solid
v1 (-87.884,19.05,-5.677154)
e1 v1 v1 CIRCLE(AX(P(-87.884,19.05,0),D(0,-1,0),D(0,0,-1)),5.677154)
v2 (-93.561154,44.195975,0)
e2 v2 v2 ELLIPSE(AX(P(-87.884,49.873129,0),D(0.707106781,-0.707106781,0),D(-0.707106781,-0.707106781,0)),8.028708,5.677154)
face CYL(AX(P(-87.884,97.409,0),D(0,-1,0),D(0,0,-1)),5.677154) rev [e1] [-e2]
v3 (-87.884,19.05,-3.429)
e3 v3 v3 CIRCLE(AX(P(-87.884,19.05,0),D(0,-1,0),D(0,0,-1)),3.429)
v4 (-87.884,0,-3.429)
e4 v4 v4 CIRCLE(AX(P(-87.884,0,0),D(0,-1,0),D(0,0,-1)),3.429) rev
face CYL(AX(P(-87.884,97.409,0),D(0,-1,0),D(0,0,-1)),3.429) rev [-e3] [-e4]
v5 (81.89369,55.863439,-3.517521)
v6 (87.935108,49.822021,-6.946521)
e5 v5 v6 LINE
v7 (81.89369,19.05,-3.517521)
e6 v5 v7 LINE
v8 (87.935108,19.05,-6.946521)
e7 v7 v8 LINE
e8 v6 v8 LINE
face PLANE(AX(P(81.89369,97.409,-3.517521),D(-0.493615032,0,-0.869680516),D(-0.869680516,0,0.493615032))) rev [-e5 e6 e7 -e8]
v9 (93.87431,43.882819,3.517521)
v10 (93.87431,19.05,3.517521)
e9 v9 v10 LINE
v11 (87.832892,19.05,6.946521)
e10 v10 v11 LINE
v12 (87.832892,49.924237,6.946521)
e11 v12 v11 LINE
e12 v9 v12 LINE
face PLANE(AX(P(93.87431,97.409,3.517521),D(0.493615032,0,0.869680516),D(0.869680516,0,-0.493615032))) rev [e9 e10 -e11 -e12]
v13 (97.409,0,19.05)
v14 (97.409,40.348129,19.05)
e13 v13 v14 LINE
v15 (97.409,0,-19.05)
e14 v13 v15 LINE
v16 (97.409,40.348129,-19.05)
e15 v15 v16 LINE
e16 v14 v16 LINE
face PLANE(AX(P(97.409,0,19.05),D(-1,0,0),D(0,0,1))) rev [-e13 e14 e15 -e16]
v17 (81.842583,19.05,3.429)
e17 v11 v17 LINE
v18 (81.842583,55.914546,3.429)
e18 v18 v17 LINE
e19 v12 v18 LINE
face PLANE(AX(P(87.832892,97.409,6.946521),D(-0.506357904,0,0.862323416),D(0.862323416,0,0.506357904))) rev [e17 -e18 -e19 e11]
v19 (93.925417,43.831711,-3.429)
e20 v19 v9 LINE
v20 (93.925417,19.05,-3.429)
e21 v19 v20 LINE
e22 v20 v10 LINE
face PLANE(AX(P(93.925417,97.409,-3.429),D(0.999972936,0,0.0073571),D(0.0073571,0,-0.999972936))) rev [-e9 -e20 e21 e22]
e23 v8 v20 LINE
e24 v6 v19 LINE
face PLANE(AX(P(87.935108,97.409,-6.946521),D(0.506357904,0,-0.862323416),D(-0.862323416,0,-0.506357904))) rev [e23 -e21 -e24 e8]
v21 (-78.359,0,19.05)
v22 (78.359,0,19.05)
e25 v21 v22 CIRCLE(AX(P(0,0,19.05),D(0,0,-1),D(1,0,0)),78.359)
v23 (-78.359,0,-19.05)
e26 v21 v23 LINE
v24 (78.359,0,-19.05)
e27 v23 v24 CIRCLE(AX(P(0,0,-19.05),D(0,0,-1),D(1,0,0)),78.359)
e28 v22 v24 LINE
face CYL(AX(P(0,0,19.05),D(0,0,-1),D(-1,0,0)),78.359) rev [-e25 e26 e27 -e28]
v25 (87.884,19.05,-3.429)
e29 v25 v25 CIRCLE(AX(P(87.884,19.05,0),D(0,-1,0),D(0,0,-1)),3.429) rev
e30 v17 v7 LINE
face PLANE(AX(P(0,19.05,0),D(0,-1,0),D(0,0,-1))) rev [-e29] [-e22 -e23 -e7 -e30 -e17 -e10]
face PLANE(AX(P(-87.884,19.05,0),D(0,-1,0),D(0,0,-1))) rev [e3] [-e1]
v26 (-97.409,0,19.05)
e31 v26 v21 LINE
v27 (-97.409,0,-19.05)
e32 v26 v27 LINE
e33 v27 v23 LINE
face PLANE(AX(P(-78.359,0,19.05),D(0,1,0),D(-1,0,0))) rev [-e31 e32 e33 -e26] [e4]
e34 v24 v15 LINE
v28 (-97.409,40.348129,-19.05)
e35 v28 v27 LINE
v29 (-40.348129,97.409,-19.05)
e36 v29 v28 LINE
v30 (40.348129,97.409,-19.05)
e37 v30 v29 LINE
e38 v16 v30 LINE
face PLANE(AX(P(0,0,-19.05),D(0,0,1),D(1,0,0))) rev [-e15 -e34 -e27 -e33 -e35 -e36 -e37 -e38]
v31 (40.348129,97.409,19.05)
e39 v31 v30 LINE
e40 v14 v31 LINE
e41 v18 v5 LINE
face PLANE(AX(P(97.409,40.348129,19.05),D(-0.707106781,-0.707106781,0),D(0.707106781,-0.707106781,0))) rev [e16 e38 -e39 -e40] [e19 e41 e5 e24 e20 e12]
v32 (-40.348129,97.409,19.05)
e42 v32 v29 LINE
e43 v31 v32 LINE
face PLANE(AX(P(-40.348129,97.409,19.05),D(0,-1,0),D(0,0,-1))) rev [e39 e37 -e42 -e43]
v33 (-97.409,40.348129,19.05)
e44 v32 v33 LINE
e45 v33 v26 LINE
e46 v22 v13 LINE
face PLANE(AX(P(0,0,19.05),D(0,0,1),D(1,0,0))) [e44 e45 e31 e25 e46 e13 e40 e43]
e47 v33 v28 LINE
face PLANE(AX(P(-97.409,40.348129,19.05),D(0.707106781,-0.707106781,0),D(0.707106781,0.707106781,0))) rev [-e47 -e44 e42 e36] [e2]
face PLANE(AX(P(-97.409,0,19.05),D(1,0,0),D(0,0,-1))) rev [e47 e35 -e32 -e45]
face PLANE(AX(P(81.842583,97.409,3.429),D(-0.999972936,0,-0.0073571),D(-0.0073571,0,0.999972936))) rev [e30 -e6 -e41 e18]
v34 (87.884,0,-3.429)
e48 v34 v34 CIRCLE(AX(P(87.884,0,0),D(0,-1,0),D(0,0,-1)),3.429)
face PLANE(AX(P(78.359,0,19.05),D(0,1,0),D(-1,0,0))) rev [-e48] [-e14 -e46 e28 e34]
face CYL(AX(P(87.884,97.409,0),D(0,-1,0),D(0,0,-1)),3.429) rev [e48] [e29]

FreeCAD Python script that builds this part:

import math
import FreeCAD as App
import Part
import Sketcher
from FreeCAD import Vector
Q = App.Units.Quantity

doc = App.newDocument("Part")
params = doc.addObject("Spreadsheet::Sheet", "Params")
for row, (alias, value) in enumerate([
    ("sketch1_radius", "3.085 in"),
    ("sketch1_width", "0.75 in"),
    ("pad1_length", "1.5 in"),
    ("sketch2_diameter", "0.27 in"),
], start=1):
    params.set(f"A{row}", alias)
    params.set(f"B{row}", "=" + value)
    params.setAlias(f"B{row}", alias)

body = doc.addObject("PartDesign::Body", "Body")

# Sketch on XY plane
sketch1 = body.newObject("Sketcher::SketchObject", "Sketch")
sketch1.AttachmentSupport = (doc.getObject("XY_Plane"), [""])
sketch1.MapMode = "FlatFace"
sketch1.addGeometry([
    Part.LineSegment(Vector(-97, 0, 0), Vector(-78, 0, 0)),  # 0
    Part.ArcOfCircle(Part.Circle(Vector(0, 0, 0), Vector(0, 0, 1), 78), math.radians(0), math.radians(180)),  # 1
    Part.LineSegment(Vector(78, 0, 0), Vector(97, 0, 0)),  # 2
    Part.LineSegment(Vector(97, 0, 0), Vector(97, 40, 0)),  # 3
    Part.LineSegment(Vector(97, 40, 0), Vector(40, 97, 0)),  # 4
    Part.LineSegment(Vector(40, 97, 0), Vector(-40, 97, 0)),  # 5
    Part.LineSegment(Vector(-40, 97, 0), Vector(-97, 40, 0)),  # 6
    Part.LineSegment(Vector(-97, 40, 0), Vector(-97, 0, 0)),  # 7
], False)
sketch1.addConstraint([
    Sketcher.Constraint("Coincident", 0, 2, 1, 2),
    Sketcher.Constraint("Coincident", 1, 1, 2, 1),
    Sketcher.Constraint("Coincident", 2, 2, 3, 1),
    Sketcher.Constraint("Coincident", 3, 2, 4, 1),
    Sketcher.Constraint("Coincident", 4, 2, 5, 1),
    Sketcher.Constraint("Coincident", 5, 2, 6, 1),
    Sketcher.Constraint("Coincident", 6, 2, 7, 1),
    Sketcher.Constraint("Coincident", 7, 2, 0, 1),
    Sketcher.Constraint("Horizontal", 0),
    Sketcher.Constraint("Horizontal", 2),
    Sketcher.Constraint("Vertical", 3),
    Sketcher.Constraint("Horizontal", 5),
    Sketcher.Constraint("Vertical", 7),
    Sketcher.Constraint("Coincident", 1, 3, -1, 1),
    Sketcher.Constraint("Symmetric", 2, 2, 7, 2, -1, 1),
    Sketcher.Constraint("PointOnObject", 0, 2, -1),
    Sketcher.Constraint("Perpendicular", 4, 6),
    Sketcher.Constraint("Horizontal", 3, 2, 6, 2),
    Sketcher.Constraint("Equal", 4, 6),
    Sketcher.Constraint("Radius", 1, Q("3.085 in")),
    Sketcher.Constraint("DistanceX", 0, 1, 0, 2, Q("0.75 in")),
    Sketcher.Constraint("DistanceY", -1, 1, 4, 2, Q("3.835 in")),
    Sketcher.Constraint("DistanceY", 3, 1, 3, 2, Q("40.348129 mm")),
])
sketch1.setExpression("Constraints[19]", "Params.sketch1_radius")
sketch1.setExpression("Constraints[20]", "Params.sketch1_width")
pad1 = body.newObject("PartDesign::Pad", "Pad")
pad1.Profile = sketch1
pad1.setExpression("Length", "Params.pad1_length")
pad1.Midplane = True

# Sketch on XZ plane
sketch2 = body.newObject("Sketcher::SketchObject", "Sketch001")
sketch2.AttachmentSupport = (doc.getObject("XZ_Plane"), [""])
sketch2.MapMode = "FlatFace"
sketch2.addGeometry([
    Part.Circle(Vector(87.9, 0, 0), Vector(0, 0, 1), 3.4),
    Part.Circle(Vector(-87.9, 0, 0), Vector(0, 0, 1), 3.4),
], False)
sketch2.addConstraint([
    Sketcher.Constraint("Equal", 0, 1),
    Sketcher.Constraint("Symmetric", 0, 3, 1, 3, -1, 1),
    Sketcher.Constraint("PointOnObject", 0, 3, -1),
    Sketcher.Constraint("Diameter", 0, Q("0.27 in")),
    Sketcher.Constraint("DistanceX", -1, 1, 0, 3, Q("3.46 in")),
])
sketch2.setExpression("Constraints[3]", "Params.sketch2_diameter")
pocket1 = body.newObject("PartDesign::Pocket", "Pocket")
pocket1.Profile = sketch2
pocket1.Type = "ThroughAll"

# Sketch on XZ plane
sketch3 = body.newObject("Sketcher::SketchObject", "Sketch002")
sketch3.AttachmentSupport = (doc.getObject("XZ_Plane"), [""])
sketch3.MapMode = "FlatFace"
sketch3.AttachmentOffset = App.Placement(Vector(0, 0, -0.75 * 25.4), App.Rotation())
sketch3.addGeometry([
    Part.Circle(Vector(-87.884, 0, 0), Vector(0, 0, 1), 5.677154),  # 0
    Part.LineSegment(Vector(93.925417, -3.429, 0), Vector(93.87431, 3.517521, 0)),  # 1
    Part.LineSegment(Vector(93.87431, 3.517521, 0), Vector(87.832892, 6.946521, 0)),  # 2
    Part.LineSegment(Vector(87.832892, 6.946521, 0), Vector(81.842583, 3.429, 0)),  # 3
    Part.LineSegment(Vector(81.842583, 3.429, 0), Vector(81.89369, -3.517521, 0)),  # 4
    Part.LineSegment(Vector(81.89369, -3.517521, 0), Vector(87.935108, -6.946521, 0)),  # 5
    Part.LineSegment(Vector(87.935108, -6.946521, 0), Vector(93.925417, -3.429, 0)),  # 6
], False)
sketch3.addConstraint([
    Sketcher.Constraint("Coincident", 1, 2, 2, 1),
    Sketcher.Constraint("Coincident", 2, 2, 3, 1),
    Sketcher.Constraint("Coincident", 3, 2, 4, 1),
    Sketcher.Constraint("Coincident", 4, 2, 5, 1),
    Sketcher.Constraint("Coincident", 5, 2, 6, 1),
    Sketcher.Constraint("Coincident", 6, 2, 1, 1),
    Sketcher.Constraint("PointOnObject", 0, 3, -1),
    Sketcher.Constraint("Parallel", 1, 4),
    Sketcher.Constraint("Parallel", 2, 5),
    Sketcher.Constraint("Parallel", 3, 6),
    Sketcher.Constraint("Equal", 1, 2),
    Sketcher.Constraint("Equal", 2, 3),
    Sketcher.Constraint("Equal", 3, 4),
    Sketcher.Constraint("DistanceX", 0, 3, -1, 1, Q("3.46 in")),
    Sketcher.Constraint("DistanceY", 6, 2, 3, 2, Q("0.27 in")),
    Sketcher.Constraint("Diameter", 0, Q("11.354308 mm")),
    Sketcher.Constraint("DistanceY", -1, 1, 3, 2, Q("0.135 in")),
    Sketcher.Constraint("DistanceY", 1, 2, 2, 2, Q("0.135 in")),
    Sketcher.Constraint("Distance", 1, Q("6.946709 mm")),
    Sketcher.Constraint("DistanceX", -1, 1, 1, 2, Q("93.87431 mm")),
    Sketcher.Constraint("DistanceY", -1, 1, 1, 2, Q("3.517521 mm")),
])
pocket2 = body.newObject("PartDesign::Pocket", "Pocket001")
pocket2.Profile = sketch3
pocket2.Type = "ThroughAll"

doc.recompute()
